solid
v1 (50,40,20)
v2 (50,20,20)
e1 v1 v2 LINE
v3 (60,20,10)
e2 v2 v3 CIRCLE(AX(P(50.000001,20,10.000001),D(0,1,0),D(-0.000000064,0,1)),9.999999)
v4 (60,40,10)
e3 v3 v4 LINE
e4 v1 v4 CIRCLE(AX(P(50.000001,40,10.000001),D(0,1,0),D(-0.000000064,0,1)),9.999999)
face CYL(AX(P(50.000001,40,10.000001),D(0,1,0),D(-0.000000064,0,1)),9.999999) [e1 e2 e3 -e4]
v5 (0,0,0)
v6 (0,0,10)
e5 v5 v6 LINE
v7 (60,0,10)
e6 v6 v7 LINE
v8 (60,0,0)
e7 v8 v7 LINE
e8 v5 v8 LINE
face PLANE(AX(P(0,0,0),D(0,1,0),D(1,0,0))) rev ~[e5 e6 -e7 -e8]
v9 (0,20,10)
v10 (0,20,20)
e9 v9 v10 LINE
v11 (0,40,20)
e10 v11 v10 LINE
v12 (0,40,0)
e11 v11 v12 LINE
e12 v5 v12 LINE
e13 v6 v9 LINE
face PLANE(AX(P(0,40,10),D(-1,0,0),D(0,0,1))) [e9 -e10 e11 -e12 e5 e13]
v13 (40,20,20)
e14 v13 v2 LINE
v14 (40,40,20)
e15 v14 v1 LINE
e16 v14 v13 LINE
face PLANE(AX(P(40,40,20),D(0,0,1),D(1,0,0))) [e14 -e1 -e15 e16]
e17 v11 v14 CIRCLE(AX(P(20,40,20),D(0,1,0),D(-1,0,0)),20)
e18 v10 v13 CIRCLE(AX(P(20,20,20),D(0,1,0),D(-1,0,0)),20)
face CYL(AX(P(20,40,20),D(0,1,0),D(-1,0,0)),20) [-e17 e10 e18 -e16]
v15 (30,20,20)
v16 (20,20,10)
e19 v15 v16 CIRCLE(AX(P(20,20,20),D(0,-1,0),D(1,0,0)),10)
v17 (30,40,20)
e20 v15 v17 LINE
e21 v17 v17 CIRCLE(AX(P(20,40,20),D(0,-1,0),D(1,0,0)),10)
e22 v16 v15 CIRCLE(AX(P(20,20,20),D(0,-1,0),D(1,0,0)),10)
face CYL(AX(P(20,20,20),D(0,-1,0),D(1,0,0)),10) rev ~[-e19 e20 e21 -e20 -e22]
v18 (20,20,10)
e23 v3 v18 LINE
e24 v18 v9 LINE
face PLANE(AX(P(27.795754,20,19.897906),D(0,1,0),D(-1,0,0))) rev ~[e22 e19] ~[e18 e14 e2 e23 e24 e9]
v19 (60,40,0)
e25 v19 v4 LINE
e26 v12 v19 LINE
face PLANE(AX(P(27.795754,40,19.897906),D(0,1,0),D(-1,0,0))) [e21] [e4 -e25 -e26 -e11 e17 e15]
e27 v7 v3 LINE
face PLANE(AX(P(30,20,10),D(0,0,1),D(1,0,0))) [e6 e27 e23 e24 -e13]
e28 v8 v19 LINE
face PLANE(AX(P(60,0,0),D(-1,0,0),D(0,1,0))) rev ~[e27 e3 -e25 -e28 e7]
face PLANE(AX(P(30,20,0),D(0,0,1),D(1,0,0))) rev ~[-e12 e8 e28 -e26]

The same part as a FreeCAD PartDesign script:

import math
import FreeCAD as App
import Part
import Sketcher
from FreeCAD import Vector
Q = App.Units.Quantity


def add_polygon(sketch, points):
    """Adds a closed chain of lines whose ends are joined by coincident constraints."""
    first, n = sketch.GeometryCount, len(points)
    for a, b in zip(points, points[1:] + points[:1]):
        sketch.addGeometry(Part.LineSegment(App.Vector(*a, 0), App.Vector(*b, 0)), False)
    for i in range(n):
        sketch.addConstraint(Sketcher.Constraint("Coincident", first + i, 2, first + (i + 1) % n, 1))

doc = App.newDocument("Part")
params = doc.addObject("Spreadsheet::Sheet", "Params")
for row, (alias, value) in enumerate([
    ("sketch1_width", "60 mm"),
    ("sketch1_height", "40 mm"),
    ("pad1_length", "10 mm"),
    ("sketch2_radius", "20 mm"),
    ("sketch2_radius2", "9.999999 mm"),
    ("sketch2_width", "10 mm"),
    ("pad2_length", "20 mm"),
    ("sketch3_diameter", "20 mm"),
    ("pocket1_length", "25 mm"),
], start=1):
    params.set(f"A{row}", alias)
    params.set(f"B{row}", "=" + value)
    params.setAlias(f"B{row}", alias)

body = doc.addObject("PartDesign::Body", "Body")

sketch1 = body.newObject("Sketcher::SketchObject", "Sketch")
sketch1.AttachmentSupport = (doc.getObject("XY_Plane"), [""])
sketch1.MapMode = "FlatFace"
add_polygon(sketch1, [(0, 40), (0, 0), (60, 0), (60, 40)])
sketch1.addConstraint(Sketcher.Constraint("Vertical", 0))
sketch1.addConstraint(Sketcher.Constraint("Horizontal", 1))
sketch1.addConstraint(Sketcher.Constraint("Vertical", 2))
sketch1.addConstraint(Sketcher.Constraint("Horizontal", 3))
sketch1.addConstraint(Sketcher.Constraint("Coincident", 0, 2, -1, 1))
sketch1.addConstraint(Sketcher.Constraint("DistanceX", 1, 1, 1, 2, Q("60 mm")))
sketch1.addConstraint(Sketcher.Constraint("DistanceY", 0, 2, 0, 1, Q("40 mm")))
sketch1.setExpression("Constraints[9]", "Params.sketch1_width")
sketch1.setExpression("Constraints[10]", "Params.sketch1_height")
pad1 = body.newObject("PartDesign::Pad", "Pad")
pad1.Profile = sketch1
pad1.setExpression("Length", "Params.pad1_length")

sketch2 = body.newObject("Sketcher::SketchObject", "Sketch001")
sketch2.AttachmentSupport = (doc.getObject("XZ_Plane"), [""])
sketch2.MapMode = "FlatFace"
sketch2.AttachmentOffset = App.Placement(Vector(0, 0, -40), App.Rotation())
sketch2.addGeometry(Part.LineSegment(Vector(0, 10, 0), Vector(0, 20, 0)), False)
sketch2.addGeometry(Part.ArcOfCircle(Part.Circle(Vector(20, 20, 0), Vector(0, 0, 1), 20), math.radians(0), math.radians(180)), False)
sketch2.addGeometry(Part.LineSegment(Vector(40, 20, 0), Vector(50, 20, 0)), False)
sketch2.addGeometry(Part.ArcOfCircle(Part.Circle(Vector(50, 10, 0), Vector(0, 0, 1), 10), math.radians(0), math.radians(90)), False)
sketch2.addGeometry(Part.LineSegment(Vector(60, 10, 0), Vector(0, 10, 0)), False)
sketch2.addConstraint(Sketcher.Constraint("Tangent", 0, 2, 1, 2))
sketch2.addConstraint(Sketcher.Constraint("Coincident", 1, 1, 2, 1))
sketch2.addConstraint(Sketcher.Constraint("Tangent", 2, 2, 3, 2))
sketch2.addConstraint(Sketcher.Constraint("Coincident", 3, 1, 4, 1))
sketch2.addConstraint(Sketcher.Constraint("Coincident", 4, 2, 0, 1))
sketch2.addConstraint(Sketcher.Constraint("Vertical", 0))
sketch2.addConstraint(Sketcher.Constraint("Horizontal", 2))
sketch2.addConstraint(Sketcher.Constraint("Horizontal", 4))
sketch2.addConstraint(Sketcher.Constraint("PointOnObject", 0, 2, -2))
sketch2.addConstraint(Sketcher.Constraint("Horizontal", 0, 2, 1, 1))
sketch2.addConstraint(Sketcher.Constraint("Equal", 2, 0))
sketch2.addConstraint(Sketcher.Constraint("Radius", 1, Q("20 mm")))
sketch2.addConstraint(Sketcher.Constraint("Radius", 3, Q("9.999999 mm")))
sketch2.addConstraint(Sketcher.Constraint("DistanceX", 2, 1, 2, 2, Q("10 mm")))
sketch2.addConstraint(Sketcher.Constraint("DistanceY", -1, 1, 1, 3, Q("20 mm")))
sketch2.setExpression("Constraints[11]", "Params.sketch2_radius")
sketch2.setExpression("Constraints[12]", "Params.sketch2_radius2")
sketch2.setExpression("Constraints[13]", "Params.sketch2_width")
pad2 = body.newObject("PartDesign::Pad", "Pad001")
pad2.Profile = sketch2
pad2.setExpression("Length", "Params.pad2_length")

sketch3 = body.newObject("Sketcher::SketchObject", "Sketch002")
sketch3.AttachmentSupport = (doc.getObject("XZ_Plane"), [""])
sketch3.MapMode = "FlatFace"
sketch3.AttachmentOffset = App.Placement(Vector(0, 0, -20), App.Rotation())
sketch3.addGeometry(Part.Circle(Vector(20, 20, 0), Vector(0, 0, 1), 10), False)
sketch3.addConstraint(Sketcher.Constraint("Diameter", 0, Q("20 mm")))
sketch3.addConstraint(Sketcher.Constraint("DistanceX", -1, 1, 0, 3, Q("20 mm")))
sketch3.addConstraint(Sketcher.Constraint("DistanceY", -1, 1, 0, 3, Q("20 mm")))
sketch3.setExpression("Constraints[0]", "Params.sketch3_diameter")
pocket1 = body.newObject("PartDesign::Pocket", "Pocket")
pocket1.Profile = sketch3
pocket1.setExpression("Length", "Params.pocket1_length")

doc.recompute()
